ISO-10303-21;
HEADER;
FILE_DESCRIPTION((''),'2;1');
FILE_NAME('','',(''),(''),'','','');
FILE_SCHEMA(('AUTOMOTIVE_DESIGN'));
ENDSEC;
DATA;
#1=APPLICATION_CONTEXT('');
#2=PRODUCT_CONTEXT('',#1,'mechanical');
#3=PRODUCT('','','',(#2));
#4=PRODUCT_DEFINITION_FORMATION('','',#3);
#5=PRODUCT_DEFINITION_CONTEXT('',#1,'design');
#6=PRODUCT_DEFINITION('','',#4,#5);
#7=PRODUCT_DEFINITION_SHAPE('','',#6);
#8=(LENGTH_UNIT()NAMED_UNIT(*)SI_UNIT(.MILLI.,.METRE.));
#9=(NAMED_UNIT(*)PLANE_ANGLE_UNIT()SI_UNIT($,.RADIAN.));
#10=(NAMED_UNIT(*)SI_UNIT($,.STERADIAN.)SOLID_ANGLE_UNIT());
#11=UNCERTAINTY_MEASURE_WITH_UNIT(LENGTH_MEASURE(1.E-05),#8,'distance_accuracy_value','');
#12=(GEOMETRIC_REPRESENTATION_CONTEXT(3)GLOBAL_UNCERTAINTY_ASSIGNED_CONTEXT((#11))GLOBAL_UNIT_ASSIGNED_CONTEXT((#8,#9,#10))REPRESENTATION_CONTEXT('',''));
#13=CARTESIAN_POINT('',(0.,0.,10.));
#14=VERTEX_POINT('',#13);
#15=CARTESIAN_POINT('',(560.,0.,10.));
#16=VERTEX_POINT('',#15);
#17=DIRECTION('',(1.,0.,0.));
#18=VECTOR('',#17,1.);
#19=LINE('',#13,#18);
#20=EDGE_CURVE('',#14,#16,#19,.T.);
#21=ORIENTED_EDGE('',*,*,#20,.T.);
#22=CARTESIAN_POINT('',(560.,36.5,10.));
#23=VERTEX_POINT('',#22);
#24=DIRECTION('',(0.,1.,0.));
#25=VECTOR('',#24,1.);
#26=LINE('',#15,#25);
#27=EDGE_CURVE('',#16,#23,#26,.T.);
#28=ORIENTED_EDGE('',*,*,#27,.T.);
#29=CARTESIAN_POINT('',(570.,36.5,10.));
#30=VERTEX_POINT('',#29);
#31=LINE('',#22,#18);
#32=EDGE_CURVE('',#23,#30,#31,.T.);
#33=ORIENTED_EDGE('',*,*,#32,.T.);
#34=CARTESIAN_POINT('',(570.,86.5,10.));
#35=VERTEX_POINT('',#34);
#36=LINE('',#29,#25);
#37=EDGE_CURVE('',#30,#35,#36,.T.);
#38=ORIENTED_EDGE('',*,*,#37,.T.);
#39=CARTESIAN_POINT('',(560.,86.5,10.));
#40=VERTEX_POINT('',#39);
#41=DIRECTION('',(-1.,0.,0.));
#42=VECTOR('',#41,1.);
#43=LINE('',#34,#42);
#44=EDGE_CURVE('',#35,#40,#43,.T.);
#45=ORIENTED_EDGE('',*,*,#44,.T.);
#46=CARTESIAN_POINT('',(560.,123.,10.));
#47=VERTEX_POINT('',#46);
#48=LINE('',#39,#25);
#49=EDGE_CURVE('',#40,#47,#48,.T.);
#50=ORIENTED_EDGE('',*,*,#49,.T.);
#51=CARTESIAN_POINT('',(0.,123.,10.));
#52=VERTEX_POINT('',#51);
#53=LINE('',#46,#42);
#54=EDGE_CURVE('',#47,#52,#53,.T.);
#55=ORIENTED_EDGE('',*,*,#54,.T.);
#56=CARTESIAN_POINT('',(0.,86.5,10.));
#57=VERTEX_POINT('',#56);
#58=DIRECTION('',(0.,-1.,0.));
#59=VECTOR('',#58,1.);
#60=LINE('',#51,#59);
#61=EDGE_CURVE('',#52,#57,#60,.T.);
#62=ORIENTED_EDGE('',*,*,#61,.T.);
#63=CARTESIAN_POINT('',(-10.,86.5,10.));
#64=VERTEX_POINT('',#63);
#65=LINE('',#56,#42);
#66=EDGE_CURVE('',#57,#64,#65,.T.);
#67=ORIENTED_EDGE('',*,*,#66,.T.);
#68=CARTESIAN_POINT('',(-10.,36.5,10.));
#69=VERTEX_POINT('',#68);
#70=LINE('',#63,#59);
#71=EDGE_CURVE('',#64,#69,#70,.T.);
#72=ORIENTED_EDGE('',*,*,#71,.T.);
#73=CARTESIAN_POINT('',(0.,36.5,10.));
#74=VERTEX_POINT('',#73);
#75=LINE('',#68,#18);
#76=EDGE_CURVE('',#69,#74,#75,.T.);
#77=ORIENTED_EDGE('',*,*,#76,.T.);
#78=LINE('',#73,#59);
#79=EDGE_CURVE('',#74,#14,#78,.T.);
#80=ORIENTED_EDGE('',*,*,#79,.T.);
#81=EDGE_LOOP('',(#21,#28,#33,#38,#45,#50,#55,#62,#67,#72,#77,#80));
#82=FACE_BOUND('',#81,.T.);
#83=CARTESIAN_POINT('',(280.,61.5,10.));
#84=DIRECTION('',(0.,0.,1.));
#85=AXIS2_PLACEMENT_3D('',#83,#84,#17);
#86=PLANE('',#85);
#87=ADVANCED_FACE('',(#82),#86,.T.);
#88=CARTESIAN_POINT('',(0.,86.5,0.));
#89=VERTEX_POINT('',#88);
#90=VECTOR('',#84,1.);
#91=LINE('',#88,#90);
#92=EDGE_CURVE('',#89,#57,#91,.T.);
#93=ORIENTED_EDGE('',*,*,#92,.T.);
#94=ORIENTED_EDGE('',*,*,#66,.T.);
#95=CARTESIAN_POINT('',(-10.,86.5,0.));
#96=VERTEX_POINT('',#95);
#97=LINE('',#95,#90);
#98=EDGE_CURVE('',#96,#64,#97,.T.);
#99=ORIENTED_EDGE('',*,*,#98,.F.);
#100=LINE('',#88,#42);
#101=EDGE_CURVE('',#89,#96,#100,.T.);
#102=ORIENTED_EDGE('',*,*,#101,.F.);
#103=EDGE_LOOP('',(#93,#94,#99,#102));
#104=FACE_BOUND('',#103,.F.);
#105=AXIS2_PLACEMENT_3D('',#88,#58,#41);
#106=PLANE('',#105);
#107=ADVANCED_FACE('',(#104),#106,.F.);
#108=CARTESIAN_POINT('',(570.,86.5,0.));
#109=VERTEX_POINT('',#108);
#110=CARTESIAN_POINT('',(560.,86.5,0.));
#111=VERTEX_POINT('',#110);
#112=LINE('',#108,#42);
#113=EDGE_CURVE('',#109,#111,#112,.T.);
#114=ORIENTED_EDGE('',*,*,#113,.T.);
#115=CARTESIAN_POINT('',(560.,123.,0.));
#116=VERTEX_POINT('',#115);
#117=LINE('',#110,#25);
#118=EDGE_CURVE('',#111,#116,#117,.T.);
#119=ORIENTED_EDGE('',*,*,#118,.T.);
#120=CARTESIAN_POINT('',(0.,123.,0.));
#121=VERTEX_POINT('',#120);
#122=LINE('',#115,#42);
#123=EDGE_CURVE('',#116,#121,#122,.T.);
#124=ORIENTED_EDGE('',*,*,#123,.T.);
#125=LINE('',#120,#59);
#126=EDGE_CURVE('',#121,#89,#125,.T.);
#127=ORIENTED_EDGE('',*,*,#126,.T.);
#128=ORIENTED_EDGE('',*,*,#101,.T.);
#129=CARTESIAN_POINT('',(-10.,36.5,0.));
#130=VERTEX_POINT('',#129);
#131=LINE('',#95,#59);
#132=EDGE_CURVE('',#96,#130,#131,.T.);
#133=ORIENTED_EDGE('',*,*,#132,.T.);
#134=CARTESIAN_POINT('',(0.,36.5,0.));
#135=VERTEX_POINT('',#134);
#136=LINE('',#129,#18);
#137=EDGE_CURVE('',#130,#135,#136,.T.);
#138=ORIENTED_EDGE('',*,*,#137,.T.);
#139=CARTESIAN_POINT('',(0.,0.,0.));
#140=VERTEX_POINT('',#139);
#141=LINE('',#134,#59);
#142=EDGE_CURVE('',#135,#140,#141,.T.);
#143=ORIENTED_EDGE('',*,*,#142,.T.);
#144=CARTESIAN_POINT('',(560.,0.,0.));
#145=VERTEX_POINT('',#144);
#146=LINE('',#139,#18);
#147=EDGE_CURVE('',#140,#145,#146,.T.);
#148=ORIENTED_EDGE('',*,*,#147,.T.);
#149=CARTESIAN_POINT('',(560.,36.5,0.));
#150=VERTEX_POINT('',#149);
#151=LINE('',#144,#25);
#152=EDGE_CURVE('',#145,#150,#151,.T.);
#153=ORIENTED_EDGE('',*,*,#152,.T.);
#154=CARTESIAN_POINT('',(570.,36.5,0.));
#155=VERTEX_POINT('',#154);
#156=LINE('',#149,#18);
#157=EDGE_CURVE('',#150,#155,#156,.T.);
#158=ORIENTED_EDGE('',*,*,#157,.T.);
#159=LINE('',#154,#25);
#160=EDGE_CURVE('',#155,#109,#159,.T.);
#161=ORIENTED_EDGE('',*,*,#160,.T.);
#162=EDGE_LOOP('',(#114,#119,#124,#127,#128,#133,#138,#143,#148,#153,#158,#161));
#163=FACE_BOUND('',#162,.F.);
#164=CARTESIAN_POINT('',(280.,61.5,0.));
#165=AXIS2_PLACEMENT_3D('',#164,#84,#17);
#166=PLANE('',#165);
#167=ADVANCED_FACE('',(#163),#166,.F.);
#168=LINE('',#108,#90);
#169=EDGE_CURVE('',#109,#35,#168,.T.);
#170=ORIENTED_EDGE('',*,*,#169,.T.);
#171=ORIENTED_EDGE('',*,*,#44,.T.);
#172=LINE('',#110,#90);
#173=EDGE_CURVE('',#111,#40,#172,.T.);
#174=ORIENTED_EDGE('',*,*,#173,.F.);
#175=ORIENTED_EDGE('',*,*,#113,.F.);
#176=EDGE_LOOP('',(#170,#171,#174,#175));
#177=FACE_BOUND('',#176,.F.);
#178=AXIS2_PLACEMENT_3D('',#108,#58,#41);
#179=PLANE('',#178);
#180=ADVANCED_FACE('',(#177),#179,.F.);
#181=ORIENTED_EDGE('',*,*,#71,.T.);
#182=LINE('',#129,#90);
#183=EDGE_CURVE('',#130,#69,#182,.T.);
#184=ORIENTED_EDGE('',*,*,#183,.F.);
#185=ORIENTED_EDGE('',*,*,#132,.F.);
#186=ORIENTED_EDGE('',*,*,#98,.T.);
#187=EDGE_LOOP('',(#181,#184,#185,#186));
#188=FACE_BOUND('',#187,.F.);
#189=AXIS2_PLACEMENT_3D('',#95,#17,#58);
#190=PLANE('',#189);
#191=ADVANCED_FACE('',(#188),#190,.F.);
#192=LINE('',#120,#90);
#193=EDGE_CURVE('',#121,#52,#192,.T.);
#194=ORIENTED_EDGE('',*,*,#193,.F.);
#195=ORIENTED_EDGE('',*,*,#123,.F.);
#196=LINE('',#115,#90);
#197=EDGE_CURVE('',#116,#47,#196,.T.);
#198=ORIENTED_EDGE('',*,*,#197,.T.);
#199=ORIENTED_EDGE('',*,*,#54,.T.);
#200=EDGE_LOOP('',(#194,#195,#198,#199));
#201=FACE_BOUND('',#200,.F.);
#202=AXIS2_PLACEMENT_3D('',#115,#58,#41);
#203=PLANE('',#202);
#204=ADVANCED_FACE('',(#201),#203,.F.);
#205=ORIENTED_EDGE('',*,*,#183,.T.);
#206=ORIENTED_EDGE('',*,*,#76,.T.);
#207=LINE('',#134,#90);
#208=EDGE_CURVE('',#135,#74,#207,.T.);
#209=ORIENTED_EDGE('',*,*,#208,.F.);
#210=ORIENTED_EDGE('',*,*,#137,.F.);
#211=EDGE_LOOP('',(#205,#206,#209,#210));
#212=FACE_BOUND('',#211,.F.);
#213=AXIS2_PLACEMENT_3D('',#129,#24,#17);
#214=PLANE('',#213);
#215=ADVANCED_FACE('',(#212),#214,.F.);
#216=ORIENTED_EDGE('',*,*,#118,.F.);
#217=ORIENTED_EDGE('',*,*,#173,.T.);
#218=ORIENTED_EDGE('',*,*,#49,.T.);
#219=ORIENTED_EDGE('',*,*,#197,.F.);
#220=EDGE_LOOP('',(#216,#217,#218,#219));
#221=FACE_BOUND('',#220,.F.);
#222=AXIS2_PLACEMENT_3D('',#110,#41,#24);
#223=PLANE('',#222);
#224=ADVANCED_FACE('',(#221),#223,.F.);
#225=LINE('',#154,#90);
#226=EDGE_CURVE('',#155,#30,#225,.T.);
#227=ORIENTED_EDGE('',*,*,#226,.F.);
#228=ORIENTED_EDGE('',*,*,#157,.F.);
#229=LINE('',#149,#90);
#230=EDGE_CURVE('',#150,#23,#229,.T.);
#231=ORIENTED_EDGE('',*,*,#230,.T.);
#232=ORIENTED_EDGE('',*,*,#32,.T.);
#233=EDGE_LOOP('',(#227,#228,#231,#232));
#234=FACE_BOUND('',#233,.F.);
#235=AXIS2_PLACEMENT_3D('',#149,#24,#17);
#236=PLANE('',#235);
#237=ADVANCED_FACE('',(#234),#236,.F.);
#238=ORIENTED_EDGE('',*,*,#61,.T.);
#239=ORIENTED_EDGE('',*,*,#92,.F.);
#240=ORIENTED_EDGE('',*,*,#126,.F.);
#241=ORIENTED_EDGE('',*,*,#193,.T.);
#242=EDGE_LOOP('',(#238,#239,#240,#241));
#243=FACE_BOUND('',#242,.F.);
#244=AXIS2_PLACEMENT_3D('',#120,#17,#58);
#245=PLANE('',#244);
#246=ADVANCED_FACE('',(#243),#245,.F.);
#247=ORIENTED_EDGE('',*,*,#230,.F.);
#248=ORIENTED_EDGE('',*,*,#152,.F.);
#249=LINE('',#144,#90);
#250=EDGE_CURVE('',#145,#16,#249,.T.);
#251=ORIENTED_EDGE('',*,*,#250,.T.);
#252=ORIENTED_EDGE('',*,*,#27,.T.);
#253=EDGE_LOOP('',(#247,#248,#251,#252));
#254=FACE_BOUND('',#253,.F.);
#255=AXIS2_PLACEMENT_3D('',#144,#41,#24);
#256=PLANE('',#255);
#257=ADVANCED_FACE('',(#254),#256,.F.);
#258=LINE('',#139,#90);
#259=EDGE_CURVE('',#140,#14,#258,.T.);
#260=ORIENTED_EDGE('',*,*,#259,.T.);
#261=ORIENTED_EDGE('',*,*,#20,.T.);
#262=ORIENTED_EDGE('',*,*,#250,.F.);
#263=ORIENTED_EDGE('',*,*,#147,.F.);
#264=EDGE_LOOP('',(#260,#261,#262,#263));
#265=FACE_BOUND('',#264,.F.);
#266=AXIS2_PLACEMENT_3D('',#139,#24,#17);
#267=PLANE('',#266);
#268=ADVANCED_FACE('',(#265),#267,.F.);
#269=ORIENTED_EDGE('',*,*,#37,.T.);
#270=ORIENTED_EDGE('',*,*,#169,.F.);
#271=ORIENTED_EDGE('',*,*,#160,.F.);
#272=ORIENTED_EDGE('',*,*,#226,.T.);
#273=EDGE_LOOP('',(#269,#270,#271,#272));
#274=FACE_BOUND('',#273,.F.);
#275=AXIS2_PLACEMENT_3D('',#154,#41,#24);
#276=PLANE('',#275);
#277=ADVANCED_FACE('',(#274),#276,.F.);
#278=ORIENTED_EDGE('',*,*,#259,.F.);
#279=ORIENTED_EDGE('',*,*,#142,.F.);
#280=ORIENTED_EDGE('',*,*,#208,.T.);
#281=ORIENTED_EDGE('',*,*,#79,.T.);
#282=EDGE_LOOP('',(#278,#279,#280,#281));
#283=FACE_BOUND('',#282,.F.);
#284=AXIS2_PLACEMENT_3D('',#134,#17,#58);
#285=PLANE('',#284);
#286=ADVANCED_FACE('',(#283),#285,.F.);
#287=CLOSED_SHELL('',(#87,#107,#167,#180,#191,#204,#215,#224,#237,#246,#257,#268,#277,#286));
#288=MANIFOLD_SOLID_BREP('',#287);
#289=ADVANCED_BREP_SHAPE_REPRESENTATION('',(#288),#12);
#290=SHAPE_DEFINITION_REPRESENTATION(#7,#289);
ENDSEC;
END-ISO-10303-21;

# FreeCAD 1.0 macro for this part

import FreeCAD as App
import Part
import Sketcher
from FreeCAD import Vector


def add_polygon(sketch, points):
    """Adds a closed chain of lines whose ends are joined by coincident constraints."""
    first, n = sketch.GeometryCount, len(points)
    for a, b in zip(points, points[1:] + points[:1]):
        sketch.addGeometry(Part.LineSegment(App.Vector(*a, 0), App.Vector(*b, 0)), False)
    for i in range(n):
        sketch.addConstraint(Sketcher.Constraint("Coincident", first + i, 2, first + (i + 1) % n, 1))

doc = App.newDocument("Part")
body = doc.addObject("PartDesign::Body", "Body")

# Sketch on XY plane
sketch1 = body.newObject("Sketcher::SketchObject", "Sketch")
sketch1.AttachmentSupport = (doc.getObject("XY_Plane"), [""])
sketch1.MapMode = "FlatFace"
add_polygon(sketch1, [(0, 0), (560, 0), (560, 36), (570, 36), (570, 86), (560, 86), (560, 123), (0, 123), (0, 86), (-10, 86), (-10, 36), (0, 36)])  # lines 0-11
sketch1.addConstraint([
    Sketcher.Constraint("Horizontal", 0),
    Sketcher.Constraint("Vertical", 1),
    Sketcher.Constraint("Horizontal", 2),
    Sketcher.Constraint("Vertical", 3),
    Sketcher.Constraint("Horizontal", 4),
    Sketcher.Constraint("Vertical", 5),
    Sketcher.Constraint("Horizontal", 6),
    Sketcher.Constraint("Vertical", 7),
    Sketcher.Constraint("Horizontal", 8),
    Sketcher.Constraint("Vertical", 9),
    Sketcher.Constraint("Horizontal", 10),
    Sketcher.Constraint("Vertical", 11),
    Sketcher.Constraint("Coincident", 11, 2, -1, 1),
    Sketcher.Constraint("PointOnObject", 6, 2, -2),
    Sketcher.Constraint("Horizontal", 4, 2, 7, 2),
    Sketcher.Constraint("Horizontal", 2, 2, 9, 2),
    Sketcher.Constraint("Vertical", 1, 2, 4, 2),
    Sketcher.Constraint("Equal", 4, 8),
    Sketcher.Constraint("Equal", 1, 5),
    Sketcher.Constraint("DistanceX", 0, 1, 0, 2, 560.0),
    Sketcher.Constraint("DistanceX", 2, 1, 2, 2, 10.0),
    Sketcher.Constraint("DistanceY", 3, 1, 3, 2, 50.0),
    Sketcher.Constraint("DistanceY", 1, 1, 1, 2, 36.5),
])
pad1 = body.newObject("PartDesign::Pad", "Pad")
pad1.Profile = sketch1
pad1.Length = 10

doc.recompute()
